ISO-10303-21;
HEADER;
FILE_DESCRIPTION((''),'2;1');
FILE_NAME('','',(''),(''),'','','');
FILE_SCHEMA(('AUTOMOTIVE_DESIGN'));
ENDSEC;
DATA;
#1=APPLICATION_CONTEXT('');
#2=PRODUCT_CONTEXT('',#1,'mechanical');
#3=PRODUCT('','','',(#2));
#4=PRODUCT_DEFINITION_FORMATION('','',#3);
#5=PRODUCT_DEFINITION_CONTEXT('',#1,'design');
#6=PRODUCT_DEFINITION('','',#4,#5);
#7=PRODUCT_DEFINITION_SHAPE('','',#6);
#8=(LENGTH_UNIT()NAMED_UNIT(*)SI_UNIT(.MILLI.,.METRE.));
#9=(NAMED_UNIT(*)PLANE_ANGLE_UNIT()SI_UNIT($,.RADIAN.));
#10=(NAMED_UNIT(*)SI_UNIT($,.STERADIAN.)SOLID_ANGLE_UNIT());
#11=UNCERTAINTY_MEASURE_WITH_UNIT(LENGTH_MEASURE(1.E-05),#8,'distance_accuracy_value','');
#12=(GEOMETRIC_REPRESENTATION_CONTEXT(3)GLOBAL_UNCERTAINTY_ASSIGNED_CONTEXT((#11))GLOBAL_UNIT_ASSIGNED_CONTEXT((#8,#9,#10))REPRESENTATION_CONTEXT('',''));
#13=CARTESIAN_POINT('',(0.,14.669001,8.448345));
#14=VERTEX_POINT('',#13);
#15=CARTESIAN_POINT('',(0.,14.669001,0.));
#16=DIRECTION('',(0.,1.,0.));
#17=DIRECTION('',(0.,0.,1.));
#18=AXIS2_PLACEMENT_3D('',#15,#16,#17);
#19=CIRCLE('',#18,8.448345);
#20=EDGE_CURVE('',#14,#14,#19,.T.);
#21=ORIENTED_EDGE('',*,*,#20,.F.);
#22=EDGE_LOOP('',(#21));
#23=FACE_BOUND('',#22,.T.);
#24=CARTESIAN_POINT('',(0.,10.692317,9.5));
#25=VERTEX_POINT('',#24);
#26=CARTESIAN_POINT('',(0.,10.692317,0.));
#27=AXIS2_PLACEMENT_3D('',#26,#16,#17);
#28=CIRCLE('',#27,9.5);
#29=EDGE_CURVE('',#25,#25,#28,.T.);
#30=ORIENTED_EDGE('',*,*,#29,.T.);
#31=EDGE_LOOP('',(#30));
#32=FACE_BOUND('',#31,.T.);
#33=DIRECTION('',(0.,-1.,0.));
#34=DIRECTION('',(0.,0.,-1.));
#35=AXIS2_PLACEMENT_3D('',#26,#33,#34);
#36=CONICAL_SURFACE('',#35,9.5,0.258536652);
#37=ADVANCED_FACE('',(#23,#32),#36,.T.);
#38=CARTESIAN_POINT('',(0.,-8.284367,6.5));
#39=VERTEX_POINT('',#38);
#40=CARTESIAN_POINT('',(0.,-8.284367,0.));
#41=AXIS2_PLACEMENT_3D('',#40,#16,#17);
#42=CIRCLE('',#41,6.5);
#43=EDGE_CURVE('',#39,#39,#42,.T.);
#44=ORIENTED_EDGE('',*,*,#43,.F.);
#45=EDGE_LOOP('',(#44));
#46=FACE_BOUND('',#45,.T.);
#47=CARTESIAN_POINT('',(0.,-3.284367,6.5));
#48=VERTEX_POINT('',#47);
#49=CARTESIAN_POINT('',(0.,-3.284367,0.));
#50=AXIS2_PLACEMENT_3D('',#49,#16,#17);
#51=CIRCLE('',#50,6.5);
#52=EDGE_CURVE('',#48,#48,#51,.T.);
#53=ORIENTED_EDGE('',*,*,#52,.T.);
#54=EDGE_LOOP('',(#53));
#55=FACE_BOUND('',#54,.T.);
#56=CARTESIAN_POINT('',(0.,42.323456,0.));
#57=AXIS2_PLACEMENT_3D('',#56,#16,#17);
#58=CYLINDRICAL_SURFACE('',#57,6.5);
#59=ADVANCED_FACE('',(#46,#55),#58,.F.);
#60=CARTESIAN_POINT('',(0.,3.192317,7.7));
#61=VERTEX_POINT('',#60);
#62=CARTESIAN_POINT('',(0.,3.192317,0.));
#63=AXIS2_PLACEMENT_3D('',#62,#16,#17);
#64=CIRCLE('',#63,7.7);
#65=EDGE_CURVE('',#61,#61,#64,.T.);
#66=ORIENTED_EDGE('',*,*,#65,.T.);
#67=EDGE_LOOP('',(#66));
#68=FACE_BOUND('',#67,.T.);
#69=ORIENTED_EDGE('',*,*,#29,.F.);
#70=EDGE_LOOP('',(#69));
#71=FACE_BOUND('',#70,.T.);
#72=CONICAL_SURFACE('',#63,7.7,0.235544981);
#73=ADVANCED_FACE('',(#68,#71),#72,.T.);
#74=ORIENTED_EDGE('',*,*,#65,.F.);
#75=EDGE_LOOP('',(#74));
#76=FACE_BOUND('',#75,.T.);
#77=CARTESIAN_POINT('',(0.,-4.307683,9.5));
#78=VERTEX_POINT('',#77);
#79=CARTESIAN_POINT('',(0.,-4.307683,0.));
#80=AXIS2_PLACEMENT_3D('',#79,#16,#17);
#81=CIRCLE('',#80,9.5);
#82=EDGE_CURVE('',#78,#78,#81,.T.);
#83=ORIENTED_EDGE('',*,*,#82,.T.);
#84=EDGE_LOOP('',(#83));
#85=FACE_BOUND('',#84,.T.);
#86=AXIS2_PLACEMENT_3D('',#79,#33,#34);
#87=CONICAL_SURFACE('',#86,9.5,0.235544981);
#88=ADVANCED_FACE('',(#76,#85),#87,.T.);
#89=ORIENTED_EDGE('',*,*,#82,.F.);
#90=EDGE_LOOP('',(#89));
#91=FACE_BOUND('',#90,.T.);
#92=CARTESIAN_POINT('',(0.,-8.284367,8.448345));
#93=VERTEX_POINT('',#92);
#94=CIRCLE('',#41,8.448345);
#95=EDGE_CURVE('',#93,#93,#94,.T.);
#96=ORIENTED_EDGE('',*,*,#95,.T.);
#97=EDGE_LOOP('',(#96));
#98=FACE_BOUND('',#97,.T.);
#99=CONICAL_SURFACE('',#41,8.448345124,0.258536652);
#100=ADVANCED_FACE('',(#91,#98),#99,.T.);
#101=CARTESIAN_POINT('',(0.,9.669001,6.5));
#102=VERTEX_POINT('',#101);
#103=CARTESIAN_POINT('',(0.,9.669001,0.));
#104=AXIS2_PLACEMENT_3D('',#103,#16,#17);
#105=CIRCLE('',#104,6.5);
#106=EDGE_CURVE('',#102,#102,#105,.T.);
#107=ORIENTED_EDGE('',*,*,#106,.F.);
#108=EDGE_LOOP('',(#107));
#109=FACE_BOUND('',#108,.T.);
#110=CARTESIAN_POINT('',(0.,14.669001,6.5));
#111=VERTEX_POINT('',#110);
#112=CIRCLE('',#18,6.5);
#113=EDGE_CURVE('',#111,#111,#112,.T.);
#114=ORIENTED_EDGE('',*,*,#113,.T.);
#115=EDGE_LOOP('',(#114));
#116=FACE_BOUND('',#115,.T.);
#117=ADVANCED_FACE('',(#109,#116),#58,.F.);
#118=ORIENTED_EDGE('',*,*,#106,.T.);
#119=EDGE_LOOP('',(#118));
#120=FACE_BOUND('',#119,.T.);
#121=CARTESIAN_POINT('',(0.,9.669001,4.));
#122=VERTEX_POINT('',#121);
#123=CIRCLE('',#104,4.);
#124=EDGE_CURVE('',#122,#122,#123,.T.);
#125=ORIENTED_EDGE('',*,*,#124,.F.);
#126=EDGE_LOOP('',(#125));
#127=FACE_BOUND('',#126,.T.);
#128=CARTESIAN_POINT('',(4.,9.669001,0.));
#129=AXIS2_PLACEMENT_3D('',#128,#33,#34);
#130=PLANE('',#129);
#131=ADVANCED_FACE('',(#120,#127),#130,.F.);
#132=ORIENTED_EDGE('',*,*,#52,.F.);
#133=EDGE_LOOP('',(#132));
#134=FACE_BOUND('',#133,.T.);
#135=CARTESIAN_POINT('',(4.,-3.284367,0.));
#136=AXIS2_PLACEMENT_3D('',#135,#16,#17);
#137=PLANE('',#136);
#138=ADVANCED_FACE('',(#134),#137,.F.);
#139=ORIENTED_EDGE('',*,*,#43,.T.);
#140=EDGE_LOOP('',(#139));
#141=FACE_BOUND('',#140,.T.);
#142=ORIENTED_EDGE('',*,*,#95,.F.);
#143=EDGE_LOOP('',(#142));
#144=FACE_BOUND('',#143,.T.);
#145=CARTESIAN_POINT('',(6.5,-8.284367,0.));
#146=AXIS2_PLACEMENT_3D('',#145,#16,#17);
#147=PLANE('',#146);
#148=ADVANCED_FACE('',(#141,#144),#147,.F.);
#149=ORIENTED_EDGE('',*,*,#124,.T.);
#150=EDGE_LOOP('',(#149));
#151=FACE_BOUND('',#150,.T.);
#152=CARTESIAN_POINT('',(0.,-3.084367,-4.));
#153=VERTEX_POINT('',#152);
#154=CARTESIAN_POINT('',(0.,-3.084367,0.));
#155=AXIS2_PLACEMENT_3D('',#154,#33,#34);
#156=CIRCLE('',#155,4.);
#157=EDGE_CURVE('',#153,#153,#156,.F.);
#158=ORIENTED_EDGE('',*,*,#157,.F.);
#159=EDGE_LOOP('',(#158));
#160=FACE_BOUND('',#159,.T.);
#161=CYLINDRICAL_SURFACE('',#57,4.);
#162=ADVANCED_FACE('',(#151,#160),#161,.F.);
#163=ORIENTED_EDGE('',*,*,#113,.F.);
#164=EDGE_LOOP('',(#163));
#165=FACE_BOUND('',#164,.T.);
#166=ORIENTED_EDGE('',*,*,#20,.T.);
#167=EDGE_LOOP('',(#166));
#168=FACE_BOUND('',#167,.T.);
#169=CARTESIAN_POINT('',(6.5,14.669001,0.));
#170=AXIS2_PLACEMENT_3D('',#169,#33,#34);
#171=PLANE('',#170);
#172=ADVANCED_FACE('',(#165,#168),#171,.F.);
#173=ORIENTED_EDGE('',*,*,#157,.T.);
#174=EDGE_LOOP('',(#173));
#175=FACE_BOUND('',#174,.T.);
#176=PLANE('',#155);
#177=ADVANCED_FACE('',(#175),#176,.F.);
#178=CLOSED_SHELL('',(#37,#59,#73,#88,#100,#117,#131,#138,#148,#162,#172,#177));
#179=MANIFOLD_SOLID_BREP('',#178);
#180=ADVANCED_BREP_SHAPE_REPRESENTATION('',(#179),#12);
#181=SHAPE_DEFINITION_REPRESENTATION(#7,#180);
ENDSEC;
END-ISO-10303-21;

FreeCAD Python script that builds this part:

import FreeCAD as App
import Part
import Sketcher
Q = App.Units.Quantity

doc = App.newDocument("Part")
body = doc.addObject("PartDesign::Body", "Body")

# Sketch on XY plane
sketch1 = body.newObject("Sketcher::SketchObject", "Sketch")
sketch1.AttachmentSupport = (doc.getObject("XY_Plane"), [""])
sketch1.MapMode = "FlatFace"
sketch1.addGeometry([
    Part.LineSegment(App.Vector(4, 9.669001, 0), App.Vector(4, -3.284367, 0)),  # 0
    Part.LineSegment(App.Vector(4, -3.284367, 0), App.Vector(6.5, -3.284367, 0)),  # 1
    Part.LineSegment(App.Vector(6.5, -3.284367, 0), App.Vector(6.5, -8.284367, 0)),  # 2
    Part.LineSegment(App.Vector(6.5, -8.284367, 0), App.Vector(8.448345, -8.284367, 0)),  # 3
    Part.LineSegment(App.Vector(8.448345, -8.284367, 0), App.Vector(9.5, -4.307683, 0)),  # 4
    Part.LineSegment(App.Vector(9.5, -4.307683, 0), App.Vector(7.7, 3.192317, 0)),  # 5
    Part.LineSegment(App.Vector(7.7, 3.192317, 0), App.Vector(9.5, 10.692317, 0)),  # 6
    Part.LineSegment(App.Vector(9.5, 10.692317, 0), App.Vector(8.448345, 14.669001, 0)),  # 7
    Part.LineSegment(App.Vector(8.448345, 14.669001, 0), App.Vector(6.5, 14.669001, 0)),  # 8
    Part.LineSegment(App.Vector(6.5, 14.669001, 0), App.Vector(6.5, 9.669001, 0)),  # 9
    Part.LineSegment(App.Vector(6.5, 9.669001, 0), App.Vector(4, 9.669001, 0)),  # 10
], False)
sketch1.addConstraint([
    Sketcher.Constraint("Coincident", 0, 2, 1, 1),
    Sketcher.Constraint("Coincident", 1, 2, 2, 1),
    Sketcher.Constraint("Coincident", 2, 2, 3, 1),
    Sketcher.Constraint("Coincident", 3, 2, 4, 1),
    Sketcher.Constraint("Coincident", 4, 2, 5, 1),
    Sketcher.Constraint("Coincident", 5, 2, 6, 1),
    Sketcher.Constraint("Coincident", 6, 2, 7, 1),
    Sketcher.Constraint("Coincident", 7, 2, 8, 1),
    Sketcher.Constraint("Coincident", 8, 2, 9, 1),
    Sketcher.Constraint("Coincident", 9, 2, 10, 1),
    Sketcher.Constraint("Coincident", 10, 2, 0, 1),
    Sketcher.Constraint("Vertical", 0),
    Sketcher.Constraint("Horizontal", 1),
    Sketcher.Constraint("Vertical", 2),
    Sketcher.Constraint("Horizontal", 3),
    Sketcher.Constraint("Horizontal", 8),
    Sketcher.Constraint("Vertical", 9),
    Sketcher.Constraint("Horizontal", 10),
    Sketcher.Constraint("Vertical", 4, 2, 6, 2),
    Sketcher.Constraint("Vertical", 3, 2, 7, 2),
    Sketcher.Constraint("Vertical", 2, 2, 8, 2),
    Sketcher.Constraint("Equal", 2, 9),
    Sketcher.Constraint("Equal", 5, 6),
    Sketcher.Constraint("Equal", 4, 7),
    Sketcher.Constraint("DistanceY", 2, 2, 2, 1, Q("5 mm")),
    Sketcher.Constraint("DistanceX", 1, 1, 1, 2, Q("2.5 mm")),
    Sketcher.Constraint("DistanceX", -1, 1, 0, 2, Q("4 mm")),
    Sketcher.Constraint("DistanceX", 1, 2, 4, 2, Q("3 mm")),
    Sketcher.Constraint("DistanceY", 4, 2, 6, 2, Q("15 mm")),
    Sketcher.Constraint("DistanceX", -1, 1, 5, 2, Q("7.7 mm")),
    Sketcher.Constraint("DistanceY", -1, 1, 7, 2, Q("14.669001 mm")),
    Sketcher.Constraint("Distance", 4, Q("4.113392 mm")),
    Sketcher.Constraint("DistanceX", 3, 1, 3, 2, Q("1.948345 mm")),
])
revolution = body.newObject("PartDesign::Revolution", "Revolution")
revolution.Profile = sketch1
revolution.ReferenceAxis = (sketch1, ["V_Axis"])
revolution.Angle = 360

# Sketch on XZ plane
sketch2 = body.newObject("Sketcher::SketchObject", "Sketch001")
sketch2.AttachmentSupport = (doc.getObject("XZ_Plane"), [""])
sketch2.MapMode = "FlatFace"
sketch2.AttachmentOffset = App.Placement(App.Vector(0, 0, 3.284367), App.Rotation())
sketch2.addGeometry(Part.Circle(App.Vector(0, 0, 0), App.Vector(0, 0, 1), 4), False)
sketch2.addConstraint([
    Sketcher.Constraint("Coincident", 0, 3, -1, 1),
    Sketcher.Constraint("Diameter", 0, Q("8 mm")),
])
pad1 = body.newObject("PartDesign::Pad", "Pad")
pad1.Profile = sketch2
pad1.Length = 0.2
pad1.Reversed = True

doc.recompute()
